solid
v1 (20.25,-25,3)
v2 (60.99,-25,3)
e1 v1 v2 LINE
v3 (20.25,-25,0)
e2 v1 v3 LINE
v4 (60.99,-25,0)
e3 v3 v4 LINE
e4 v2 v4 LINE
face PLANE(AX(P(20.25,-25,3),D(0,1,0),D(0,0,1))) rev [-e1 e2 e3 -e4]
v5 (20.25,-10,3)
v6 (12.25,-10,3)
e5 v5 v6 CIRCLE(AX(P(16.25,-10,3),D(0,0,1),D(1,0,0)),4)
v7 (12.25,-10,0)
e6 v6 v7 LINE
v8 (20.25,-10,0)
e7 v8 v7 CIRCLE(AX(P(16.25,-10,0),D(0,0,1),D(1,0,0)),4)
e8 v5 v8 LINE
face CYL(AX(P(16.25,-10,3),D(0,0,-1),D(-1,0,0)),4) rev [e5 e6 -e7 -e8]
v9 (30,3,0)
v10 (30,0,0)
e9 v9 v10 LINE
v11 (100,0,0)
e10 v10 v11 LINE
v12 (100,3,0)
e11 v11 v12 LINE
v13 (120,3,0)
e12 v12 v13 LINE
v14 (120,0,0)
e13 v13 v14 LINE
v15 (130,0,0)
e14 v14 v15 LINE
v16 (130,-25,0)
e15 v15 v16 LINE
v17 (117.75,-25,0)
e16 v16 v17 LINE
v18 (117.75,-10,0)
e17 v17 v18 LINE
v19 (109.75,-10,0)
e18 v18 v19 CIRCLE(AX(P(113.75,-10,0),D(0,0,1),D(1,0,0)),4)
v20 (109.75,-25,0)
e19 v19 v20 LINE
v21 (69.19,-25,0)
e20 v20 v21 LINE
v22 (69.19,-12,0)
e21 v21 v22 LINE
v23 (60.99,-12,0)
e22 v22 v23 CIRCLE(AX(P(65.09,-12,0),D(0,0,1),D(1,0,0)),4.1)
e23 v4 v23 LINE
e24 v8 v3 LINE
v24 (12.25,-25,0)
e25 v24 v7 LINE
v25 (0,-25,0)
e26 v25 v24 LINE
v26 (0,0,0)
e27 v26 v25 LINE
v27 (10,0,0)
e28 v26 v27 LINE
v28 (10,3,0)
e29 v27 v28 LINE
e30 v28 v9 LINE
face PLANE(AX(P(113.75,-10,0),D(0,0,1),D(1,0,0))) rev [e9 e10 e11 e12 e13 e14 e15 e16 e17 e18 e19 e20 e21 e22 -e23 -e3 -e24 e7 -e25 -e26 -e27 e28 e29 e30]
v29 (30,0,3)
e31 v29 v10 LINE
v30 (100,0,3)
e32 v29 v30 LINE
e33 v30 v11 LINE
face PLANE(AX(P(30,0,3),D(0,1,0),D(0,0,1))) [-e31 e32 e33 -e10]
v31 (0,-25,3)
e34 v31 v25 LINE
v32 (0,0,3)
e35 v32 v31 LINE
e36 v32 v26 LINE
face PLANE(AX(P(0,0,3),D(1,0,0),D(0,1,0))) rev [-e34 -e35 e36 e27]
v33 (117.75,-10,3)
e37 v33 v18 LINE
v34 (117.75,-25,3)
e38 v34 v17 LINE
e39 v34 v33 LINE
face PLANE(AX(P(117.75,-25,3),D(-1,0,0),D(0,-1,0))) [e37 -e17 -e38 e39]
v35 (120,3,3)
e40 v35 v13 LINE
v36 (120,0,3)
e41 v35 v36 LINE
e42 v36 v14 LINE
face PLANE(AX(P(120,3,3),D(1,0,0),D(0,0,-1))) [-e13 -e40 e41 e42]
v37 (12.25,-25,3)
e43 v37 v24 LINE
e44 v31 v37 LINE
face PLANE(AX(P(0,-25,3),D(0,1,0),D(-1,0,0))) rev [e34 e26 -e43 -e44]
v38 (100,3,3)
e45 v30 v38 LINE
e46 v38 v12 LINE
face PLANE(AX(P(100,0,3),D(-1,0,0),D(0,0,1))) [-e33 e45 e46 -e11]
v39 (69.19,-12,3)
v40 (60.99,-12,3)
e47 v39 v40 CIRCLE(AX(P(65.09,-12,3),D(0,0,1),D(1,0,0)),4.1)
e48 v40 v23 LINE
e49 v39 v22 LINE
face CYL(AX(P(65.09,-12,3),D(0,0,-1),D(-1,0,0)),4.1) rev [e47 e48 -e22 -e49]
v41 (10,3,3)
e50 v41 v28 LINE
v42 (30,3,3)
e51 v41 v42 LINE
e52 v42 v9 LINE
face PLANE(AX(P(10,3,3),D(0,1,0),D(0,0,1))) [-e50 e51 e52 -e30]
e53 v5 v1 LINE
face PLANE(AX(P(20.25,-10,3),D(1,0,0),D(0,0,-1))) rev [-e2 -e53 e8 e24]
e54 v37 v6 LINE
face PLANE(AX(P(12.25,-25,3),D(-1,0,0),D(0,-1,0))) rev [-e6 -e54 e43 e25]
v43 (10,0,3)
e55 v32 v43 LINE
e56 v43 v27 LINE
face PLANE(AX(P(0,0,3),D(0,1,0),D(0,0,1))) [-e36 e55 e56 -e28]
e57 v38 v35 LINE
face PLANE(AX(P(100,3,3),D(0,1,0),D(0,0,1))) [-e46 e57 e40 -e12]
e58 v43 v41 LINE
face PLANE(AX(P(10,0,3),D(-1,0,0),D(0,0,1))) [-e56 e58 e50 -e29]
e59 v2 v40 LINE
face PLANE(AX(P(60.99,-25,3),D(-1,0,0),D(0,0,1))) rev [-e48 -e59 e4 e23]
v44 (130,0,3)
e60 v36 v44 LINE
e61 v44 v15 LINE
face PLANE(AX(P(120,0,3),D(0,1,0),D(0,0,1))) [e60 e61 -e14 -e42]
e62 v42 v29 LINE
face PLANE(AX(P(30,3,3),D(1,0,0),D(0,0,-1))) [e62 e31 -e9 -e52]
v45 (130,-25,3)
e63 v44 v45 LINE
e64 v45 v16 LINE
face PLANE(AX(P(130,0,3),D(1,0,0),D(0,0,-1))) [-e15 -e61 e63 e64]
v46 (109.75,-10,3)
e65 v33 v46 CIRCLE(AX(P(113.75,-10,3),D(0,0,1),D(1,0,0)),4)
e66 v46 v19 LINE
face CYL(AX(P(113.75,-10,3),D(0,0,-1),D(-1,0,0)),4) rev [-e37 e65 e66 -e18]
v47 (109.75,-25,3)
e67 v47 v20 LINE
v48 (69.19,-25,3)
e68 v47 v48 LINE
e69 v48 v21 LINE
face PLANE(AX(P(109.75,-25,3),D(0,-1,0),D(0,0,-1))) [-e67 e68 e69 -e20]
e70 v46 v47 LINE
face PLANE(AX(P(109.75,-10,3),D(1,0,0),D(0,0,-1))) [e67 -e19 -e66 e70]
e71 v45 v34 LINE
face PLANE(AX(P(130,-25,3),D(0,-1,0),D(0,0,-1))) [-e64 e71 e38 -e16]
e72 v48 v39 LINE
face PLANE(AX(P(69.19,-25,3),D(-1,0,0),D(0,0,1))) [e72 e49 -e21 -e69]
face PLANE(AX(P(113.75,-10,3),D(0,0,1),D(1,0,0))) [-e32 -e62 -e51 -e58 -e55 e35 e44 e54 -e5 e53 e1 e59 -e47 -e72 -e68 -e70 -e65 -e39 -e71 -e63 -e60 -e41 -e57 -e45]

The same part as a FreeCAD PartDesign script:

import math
import FreeCAD as App
import Part
import Sketcher
from FreeCAD import Vector

doc = App.newDocument("Part")
params = doc.addObject("Spreadsheet::Sheet", "Params")
for row, (alias, value) in enumerate([
    ("sketch1_radius", "4 mm"),
    ("sketch1_radius2", "4.1 mm"),
    ("sketch1_width", "10 mm"),
    ("sketch1_width2", "20 mm"),
    ("sketch1_width3", "70 mm"),
    ("pad1_length", "3 mm"),
], start=1):
    params.set(f"A{row}", alias)
    params.set(f"B{row}", "=" + value)
    params.setAlias(f"B{row}", alias)

body = doc.addObject("PartDesign::Body", "Body")

# Sketch on XY plane
sketch1 = doc.addObject("Sketcher::SketchObject", "Sketch")
body.addObject(sketch1)
sketch1.AttachmentSupport = (doc.XY_Plane, [""])
sketch1.MapMode = "FlatFace"
sketch1.addGeometry([
    Part.LineSegment(Vector(10, 0, 0), Vector(0, 0, 0)),  # 0
    Part.LineSegment(Vector(0, 0, 0), Vector(0, -25, 0)),  # 1
    Part.LineSegment(Vector(0, -25, 0), Vector(12.25, -25, 0)),  # 2
    Part.LineSegment(Vector(12.25, -25, 0), Vector(12.25, -10, 0)),  # 3
    Part.ArcOfCircle(Part.Circle(Vector(16.25, -10, 0), Vector(0, 0, 1), 4), math.radians(0), math.radians(180)),  # 4
    Part.LineSegment(Vector(20.25, -10, 0), Vector(20.25, -25, 0)),  # 5
    Part.LineSegment(Vector(20.25, -25, 0), Vector(60.99, -25, 0)),  # 6
    Part.LineSegment(Vector(60.99, -25, 0), Vector(60.99, -12, 0)),  # 7
    Part.ArcOfCircle(Part.Circle(Vector(65.09, -12, 0), Vector(0, 0, 1), 4.1), math.radians(0), math.radians(180)),  # 8
    Part.LineSegment(Vector(69.19, -12, 0), Vector(69.19, -25, 0)),  # 9
    Part.LineSegment(Vector(69.19, -25, 0), Vector(109.75, -25, 0)),  # 10
    Part.LineSegment(Vector(109.75, -25, 0), Vector(109.75, -10, 0)),  # 11
    Part.ArcOfCircle(Part.Circle(Vector(113.75, -10, 0), Vector(0, 0, 1), 4), math.radians(0), math.radians(180)),  # 12
    Part.LineSegment(Vector(117.75, -10, 0), Vector(117.75, -25, 0)),  # 13
    Part.LineSegment(Vector(117.75, -25, 0), Vector(130, -25, 0)),  # 14
    Part.LineSegment(Vector(130, -25, 0), Vector(130, 0, 0)),  # 15
    Part.LineSegment(Vector(130, 0, 0), Vector(120, 0, 0)),  # 16
    Part.LineSegment(Vector(120, 0, 0), Vector(120, 3, 0)),  # 17
    Part.LineSegment(Vector(120, 3, 0), Vector(100, 3, 0)),  # 18
    Part.LineSegment(Vector(100, 3, 0), Vector(100, 0, 0)),  # 19
    Part.LineSegment(Vector(100, 0, 0), Vector(30, 0, 0)),  # 20
    Part.LineSegment(Vector(30, 0, 0), Vector(30, 3, 0)),  # 21
    Part.LineSegment(Vector(30, 3, 0), Vector(10, 3, 0)),  # 22
    Part.LineSegment(Vector(10, 3, 0), Vector(10, 0, 0)),  # 23
], False)
sketch1.addConstraint([
    Sketcher.Constraint("Coincident", 0, 2, 1, 1),
    Sketcher.Constraint("Coincident", 1, 2, 2, 1),
    Sketcher.Constraint("Coincident", 2, 2, 3, 1),
    Sketcher.Constraint("Tangent", 3, 2, 4, 2),
    Sketcher.Constraint("Tangent", 4, 1, 5, 1),
    Sketcher.Constraint("Coincident", 5, 2, 6, 1),
    Sketcher.Constraint("Coincident", 6, 2, 7, 1),
    Sketcher.Constraint("Tangent", 7, 2, 8, 2),
    Sketcher.Constraint("Tangent", 8, 1, 9, 1),
    Sketcher.Constraint("Coincident", 9, 2, 10, 1),
    Sketcher.Constraint("Coincident", 10, 2, 11, 1),
    Sketcher.Constraint("Tangent", 11, 2, 12, 2),
    Sketcher.Constraint("Tangent", 12, 1, 13, 1),
    Sketcher.Constraint("Coincident", 13, 2, 14, 1),
    Sketcher.Constraint("Coincident", 14, 2, 15, 1),
    Sketcher.Constraint("Coincident", 15, 2, 16, 1),
    Sketcher.Constraint("Coincident", 16, 2, 17, 1),
    Sketcher.Constraint("Coincident", 17, 2, 18, 1),
    Sketcher.Constraint("Coincident", 18, 2, 19, 1),
    Sketcher.Constraint("Coincident", 19, 2, 20, 1),
    Sketcher.Constraint("Coincident", 20, 2, 21, 1),
    Sketcher.Constraint("Coincident", 21, 2, 22, 1),
    Sketcher.Constraint("Coincident", 22, 2, 23, 1),
    Sketcher.Constraint("Coincident", 23, 2, 0, 1),
    Sketcher.Constraint("Horizontal", 0),
    Sketcher.Constraint("Vertical", 1),
    Sketcher.Constraint("Horizontal", 2),
    Sketcher.Constraint("Vertical", 3),
    Sketcher.Constraint("Vertical", 5),
    Sketcher.Constraint("Horizontal", 6),
    Sketcher.Constraint("Vertical", 7),
    Sketcher.Constraint("Vertical", 9),
    Sketcher.Constraint("Horizontal", 10),
    Sketcher.Constraint("Vertical", 11),
    Sketcher.Constraint("Vertical", 13),
    Sketcher.Constraint("Horizontal", 14),
    Sketcher.Constraint("Vertical", 15),
    Sketcher.Constraint("Horizontal", 16),
    Sketcher.Constraint("Vertical", 17),
    Sketcher.Constraint("Horizontal", 18),
    Sketcher.Constraint("Vertical", 19),
    Sketcher.Constraint("Horizontal", 20),
    Sketcher.Constraint("Vertical", 21),
    Sketcher.Constraint("Horizontal", 22),
    Sketcher.Constraint("Vertical", 23),
    Sketcher.Constraint("Coincident", 0, 2, -1, 1),
    Sketcher.Constraint("Equal", 4, 12),
    Sketcher.Constraint("PointOnObject", 15, 2, -1),
    Sketcher.Constraint("PointOnObject", 19, 2, -1),
    Sketcher.Constraint("Horizontal", 4, 3, 12, 3),
    Sketcher.Constraint("Horizontal", 2, 2, 5, 2),
    Sketcher.Constraint("Horizontal", 6, 2, 9, 2),
    Sketcher.Constraint("Horizontal", 10, 2, 13, 2),
    Sketcher.Constraint("Horizontal", 18, 2, 21, 2),
    Sketcher.Constraint("Equal", 2, 14),
    Sketcher.Constraint("Equal", 0, 16),
    Sketcher.Constraint("Equal", 18, 22),
    Sketcher.Constraint("Radius", 4, 4.0),
    Sketcher.Constraint("Radius", 8, 4.1),
    Sketcher.Constraint("DistanceX", 0, 2, 0, 1, 10.0),
    Sketcher.Constraint("DistanceX", 18, 2, 18, 1, 20.0),
    Sketcher.Constraint("DistanceX", 20, 2, 20, 1, 70.0),
    Sketcher.Constraint("DistanceY", 1, 2, 1, 1, 25.0),
    Sketcher.Constraint("DistanceY", 3, 1, 3, 2, 15.0),
    Sketcher.Constraint("DistanceY", 7, 1, 7, 2, 13.0),
    Sketcher.Constraint("DistanceY", 17, 1, 17, 2, 3.0),
    Sketcher.Constraint("DistanceX", 2, 1, 2, 2, 12.25),
    Sketcher.Constraint("DistanceX", 6, 1, 6, 2, 40.74),
])
sketch1.setExpression("Constraints[57]", "Params.sketch1_radius")
sketch1.setExpression("Constraints[58]", "Params.sketch1_radius2")
sketch1.setExpression("Constraints[59]", "Params.sketch1_width")
sketch1.setExpression("Constraints[60]", "Params.sketch1_width2")
sketch1.setExpression("Constraints[61]", "Params.sketch1_width3")
pad1 = doc.addObject("PartDesign::Pad", "Pad")
body.addObject(pad1)
pad1.Profile = sketch1
pad1.setExpression("Length", "Params.pad1_length")

doc.recompute()
